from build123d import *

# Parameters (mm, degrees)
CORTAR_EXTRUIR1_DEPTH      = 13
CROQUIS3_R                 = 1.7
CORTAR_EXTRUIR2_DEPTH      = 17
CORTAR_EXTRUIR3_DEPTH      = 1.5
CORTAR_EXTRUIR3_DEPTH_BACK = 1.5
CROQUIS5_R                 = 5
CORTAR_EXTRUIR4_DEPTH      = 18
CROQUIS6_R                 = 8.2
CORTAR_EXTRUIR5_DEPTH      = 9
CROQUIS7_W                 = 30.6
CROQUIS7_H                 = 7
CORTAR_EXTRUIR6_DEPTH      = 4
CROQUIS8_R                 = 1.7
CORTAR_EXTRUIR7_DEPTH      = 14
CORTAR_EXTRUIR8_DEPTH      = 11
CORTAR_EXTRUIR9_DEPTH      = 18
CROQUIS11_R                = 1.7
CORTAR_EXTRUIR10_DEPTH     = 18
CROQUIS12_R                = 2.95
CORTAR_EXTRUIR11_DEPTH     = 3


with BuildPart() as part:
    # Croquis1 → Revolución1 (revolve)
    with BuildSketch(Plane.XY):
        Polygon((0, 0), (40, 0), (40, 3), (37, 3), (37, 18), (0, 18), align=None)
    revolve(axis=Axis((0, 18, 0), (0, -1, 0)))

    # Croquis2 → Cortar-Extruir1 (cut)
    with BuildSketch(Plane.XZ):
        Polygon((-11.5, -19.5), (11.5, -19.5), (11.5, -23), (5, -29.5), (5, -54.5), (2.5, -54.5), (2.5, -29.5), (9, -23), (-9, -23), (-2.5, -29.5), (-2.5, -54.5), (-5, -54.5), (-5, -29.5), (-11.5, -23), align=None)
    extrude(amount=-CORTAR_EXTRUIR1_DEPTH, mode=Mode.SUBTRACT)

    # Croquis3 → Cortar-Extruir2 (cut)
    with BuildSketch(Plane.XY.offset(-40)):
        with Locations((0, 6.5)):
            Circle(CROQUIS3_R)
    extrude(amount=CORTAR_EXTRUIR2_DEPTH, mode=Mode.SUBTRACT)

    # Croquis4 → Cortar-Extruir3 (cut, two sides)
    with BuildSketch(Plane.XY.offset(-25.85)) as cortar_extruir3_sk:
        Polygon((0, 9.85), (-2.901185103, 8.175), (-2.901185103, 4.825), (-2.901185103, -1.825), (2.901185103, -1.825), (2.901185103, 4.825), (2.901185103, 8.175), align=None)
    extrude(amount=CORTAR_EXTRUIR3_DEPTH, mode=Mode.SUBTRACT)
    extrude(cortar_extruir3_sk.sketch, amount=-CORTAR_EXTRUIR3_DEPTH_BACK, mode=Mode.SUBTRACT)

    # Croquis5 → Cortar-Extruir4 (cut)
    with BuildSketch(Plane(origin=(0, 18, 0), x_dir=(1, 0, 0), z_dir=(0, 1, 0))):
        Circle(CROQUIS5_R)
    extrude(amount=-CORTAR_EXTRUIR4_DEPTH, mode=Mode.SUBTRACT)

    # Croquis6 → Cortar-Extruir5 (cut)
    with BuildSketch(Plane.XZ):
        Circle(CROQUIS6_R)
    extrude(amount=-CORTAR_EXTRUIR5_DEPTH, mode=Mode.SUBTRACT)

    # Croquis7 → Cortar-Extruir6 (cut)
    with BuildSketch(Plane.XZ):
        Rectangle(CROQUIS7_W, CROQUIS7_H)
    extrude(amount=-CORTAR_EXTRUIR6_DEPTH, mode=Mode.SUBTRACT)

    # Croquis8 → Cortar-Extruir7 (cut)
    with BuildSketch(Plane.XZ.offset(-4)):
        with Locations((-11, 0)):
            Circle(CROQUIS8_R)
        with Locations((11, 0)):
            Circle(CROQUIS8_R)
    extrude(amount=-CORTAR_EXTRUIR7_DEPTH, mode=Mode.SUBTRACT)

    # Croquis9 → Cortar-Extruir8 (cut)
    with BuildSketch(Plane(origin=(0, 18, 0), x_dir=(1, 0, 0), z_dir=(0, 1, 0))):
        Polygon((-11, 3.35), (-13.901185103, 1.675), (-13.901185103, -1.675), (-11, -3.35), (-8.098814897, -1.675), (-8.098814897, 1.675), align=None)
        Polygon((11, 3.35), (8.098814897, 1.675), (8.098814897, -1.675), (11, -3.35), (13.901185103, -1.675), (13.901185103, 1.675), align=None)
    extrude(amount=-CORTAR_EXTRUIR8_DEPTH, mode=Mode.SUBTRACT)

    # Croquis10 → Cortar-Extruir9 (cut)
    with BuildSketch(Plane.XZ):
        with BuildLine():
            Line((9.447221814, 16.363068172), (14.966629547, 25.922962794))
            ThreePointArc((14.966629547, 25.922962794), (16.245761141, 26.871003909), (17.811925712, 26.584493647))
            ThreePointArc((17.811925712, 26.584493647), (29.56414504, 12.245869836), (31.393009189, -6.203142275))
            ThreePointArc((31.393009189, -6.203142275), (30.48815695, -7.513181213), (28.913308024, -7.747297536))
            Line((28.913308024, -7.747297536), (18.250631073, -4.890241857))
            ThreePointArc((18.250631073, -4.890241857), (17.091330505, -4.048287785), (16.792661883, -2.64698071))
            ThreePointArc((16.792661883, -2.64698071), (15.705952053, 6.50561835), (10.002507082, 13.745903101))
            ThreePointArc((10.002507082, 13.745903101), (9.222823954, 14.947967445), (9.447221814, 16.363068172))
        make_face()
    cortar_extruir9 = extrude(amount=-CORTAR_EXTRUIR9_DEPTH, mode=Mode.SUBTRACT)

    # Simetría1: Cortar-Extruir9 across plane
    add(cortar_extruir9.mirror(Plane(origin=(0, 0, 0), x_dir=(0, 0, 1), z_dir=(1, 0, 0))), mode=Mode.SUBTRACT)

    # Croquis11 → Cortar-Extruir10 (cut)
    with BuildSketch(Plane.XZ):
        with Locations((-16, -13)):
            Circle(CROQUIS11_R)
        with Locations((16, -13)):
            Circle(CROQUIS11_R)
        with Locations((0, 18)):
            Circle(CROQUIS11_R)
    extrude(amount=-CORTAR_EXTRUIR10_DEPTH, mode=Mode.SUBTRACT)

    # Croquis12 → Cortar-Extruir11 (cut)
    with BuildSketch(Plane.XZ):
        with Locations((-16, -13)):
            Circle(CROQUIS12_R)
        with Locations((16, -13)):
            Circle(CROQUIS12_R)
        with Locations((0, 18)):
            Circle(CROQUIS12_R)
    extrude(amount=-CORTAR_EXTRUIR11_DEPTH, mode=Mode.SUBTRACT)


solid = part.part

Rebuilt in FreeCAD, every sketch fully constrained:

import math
import FreeCAD as App
import Part
import Sketcher

V = App.Vector
Q = App.Units.Quantity

doc = App.newDocument("Part")
body = doc.addObject("PartDesign::Body", "Body")

# Sketch on XY plane
sketch1 = body.newObject("Sketcher::SketchObject", "Sketch")
sketch1.AttachmentSupport = (doc.getObject("XY_Plane"), [""])
sketch1.MapMode = "FlatFace"
sketch1.addGeometry(Part.LineSegment(V(0, 0, 0), V(40, 0, 0)), False)
sketch1.addGeometry(Part.LineSegment(V(40, 0, 0), V(40, 3, 0)), False)
sketch1.addGeometry(Part.LineSegment(V(40, 3, 0), V(37, 3, 0)), False)
sketch1.addGeometry(Part.LineSegment(V(37, 3, 0), V(37, 18, 0)), False)
sketch1.addGeometry(Part.LineSegment(V(37, 18, 0), V(0, 18, 0)), False)
sketch1.addGeometry(Part.LineSegment(V(0, 18, 0), V(0, 0, 0)), False)
sketch1.addConstraint(Sketcher.Constraint("Coincident", 0, 2, 1, 1))
sketch1.addConstraint(Sketcher.Constraint("Coincident", 1, 2, 2, 1))
sketch1.addConstraint(Sketcher.Constraint("Coincident", 2, 2, 3, 1))
sketch1.addConstraint(Sketcher.Constraint("Coincident", 3, 2, 4, 1))
sketch1.addConstraint(Sketcher.Constraint("Coincident", 4, 2, 5, 1))
sketch1.addConstraint(Sketcher.Constraint("Coincident", 5, 2, 0, 1))
sketch1.addConstraint(Sketcher.Constraint("Horizontal", 0))
sketch1.addConstraint(Sketcher.Constraint("Vertical", 1))
sketch1.addConstraint(Sketcher.Constraint("Horizontal", 2))
sketch1.addConstraint(Sketcher.Constraint("Vertical", 3))
sketch1.addConstraint(Sketcher.Constraint("Horizontal", 4))
sketch1.addConstraint(Sketcher.Constraint("Vertical", 5))
sketch1.addConstraint(Sketcher.Constraint("Coincident", 5, 2, -1, 1))
sketch1.addConstraint(Sketcher.Constraint("Equal", 2, 1))
sketch1.addConstraint(Sketcher.Constraint("DistanceX", 0, 1, 0, 2, 40.0))
sketch1.addConstraint(Sketcher.Constraint("DistanceX", 2, 2, 2, 1, 3.0))
sketch1.addConstraint(Sketcher.Constraint("DistanceY", 3, 1, 3, 2, 15.0))
revolution = body.newObject("PartDesign::Revolution", "Revolution")
revolution.Profile = sketch1
revolution.ReferenceAxis = (sketch1, ["V_Axis"])
revolution.Angle = 360

# Sketch on XZ plane
sketch2 = body.newObject("Sketcher::SketchObject", "Sketch001")
sketch2.AttachmentSupport = (doc.getObject("XZ_Plane"), [""])
sketch2.MapMode = "FlatFace"
sketch2.addGeometry(Part.LineSegment(V(11.5, -19.5, 0), V(-11.5, -19.5, 0)), False)
sketch2.addGeometry(Part.LineSegment(V(-11.5, -19.5, 0), V(-11.5, -23, 0)), False)
sketch2.addGeometry(Part.LineSegment(V(-11.5, -23, 0), V(-5, -29.5, 0)), False)
sketch2.addGeometry(Part.LineSegment(V(-5, -29.5, 0), V(-5, -54.5, 0)), False)
sketch2.addGeometry(Part.LineSegment(V(-5, -54.5, 0), V(-2.5, -54.5, 0)), False)
sketch2.addGeometry(Part.LineSegment(V(-2.5, -54.5, 0), V(-2.5, -29.5, 0)), False)
sketch2.addGeometry(Part.LineSegment(V(-2.5, -29.5, 0), V(-9, -23, 0)), False)
sketch2.addGeometry(Part.LineSegment(V(-9, -23, 0), V(9, -23, 0)), False)
sketch2.addGeometry(Part.LineSegment(V(9, -23, 0), V(2.5, -29.5, 0)), False)
sketch2.addGeometry(Part.LineSegment(V(2.5, -29.5, 0), V(2.5, -54.5, 0)), False)
sketch2.addGeometry(Part.LineSegment(V(2.5, -54.5, 0), V(5, -54.5, 0)), False)
sketch2.addGeometry(Part.LineSegment(V(5, -54.5, 0), V(5, -29.5, 0)), False)
sketch2.addGeometry(Part.LineSegment(V(5, -29.5, 0), V(11.5, -23, 0)), False)
sketch2.addGeometry(Part.LineSegment(V(11.5, -23, 0), V(11.5, -19.5, 0)), False)
sketch2.addConstraint(Sketcher.Constraint("Coincident", 0, 2, 1, 1))
sketch2.addConstraint(Sketcher.Constraint("Coincident", 1, 2, 2, 1))
sketch2.addConstraint(Sketcher.Constraint("Coincident", 2, 2, 3, 1))
sketch2.addConstraint(Sketcher.Constraint("Coincident", 3, 2, 4, 1))
sketch2.addConstraint(Sketcher.Constraint("Coincident", 4, 2, 5, 1))
sketch2.addConstraint(Sketcher.Constraint("Coincident", 5, 2, 6, 1))
sketch2.addConstraint(Sketcher.Constraint("Coincident", 6, 2, 7, 1))
sketch2.addConstraint(Sketcher.Constraint("Coincident", 7, 2, 8, 1))
sketch2.addConstraint(Sketcher.Constraint("Coincident", 8, 2, 9, 1))
sketch2.addConstraint(Sketcher.Constraint("Coincident", 9, 2, 10, 1))
sketch2.addConstraint(Sketcher.Constraint("Coincident", 10, 2, 11, 1))
sketch2.addConstraint(Sketcher.Constraint("Coincident", 11, 2, 12, 1))
sketch2.addConstraint(Sketcher.Constraint("Coincident", 12, 2, 13, 1))
sketch2.addConstraint(Sketcher.Constraint("Coincident", 13, 2, 0, 1))
sketch2.addConstraint(Sketcher.Constraint("Horizontal", 0))
sketch2.addConstraint(Sketcher.Constraint("Vertical", 1))
sketch2.addConstraint(Sketcher.Constraint("Vertical", 3))
sketch2.addConstraint(Sketcher.Constraint("Horizontal", 4))
sketch2.addConstraint(Sketcher.Constraint("Vertical", 5))
sketch2.addConstraint(Sketcher.Constraint("Horizontal", 7))
sketch2.addConstraint(Sketcher.Constraint("Vertical", 9))
sketch2.addConstraint(Sketcher.Constraint("Horizontal", 10))
sketch2.addConstraint(Sketcher.Constraint("Vertical", 11))
sketch2.addConstraint(Sketcher.Constraint("Vertical", 13))
sketch2.addConstraint(Sketcher.Constraint("Symmetric", 5, 2, 8, 2, -2))
sketch2.addConstraint(Sketcher.Constraint("Symmetric", 3, 2, 10, 2, -2))
sketch2.addConstraint(Sketcher.Constraint("Symmetric", 1, 2, 12, 2, -2))
sketch2.addConstraint(Sketcher.Constraint("Parallel", 2, 6))
sketch2.addConstraint(Sketcher.Constraint("Perpendicular", 6, 8))
sketch2.addConstraint(Sketcher.Constraint("Parallel", 8, 12))
sketch2.addConstraint(Sketcher.Constraint("Horizontal", 2, 2, 5, 2))
sketch2.addConstraint(Sketcher.Constraint("Horizontal", 1, 2, 6, 2))
sketch2.addConstraint(Sketcher.Constraint("Horizontal", 8, 2, 11, 2))
sketch2.addConstraint(Sketcher.Constraint("DistanceX", 0, 2, 0, 1, 23.0))
sketch2.addConstraint(Sketcher.Constraint("DistanceX", 7, 1, 7, 2, 18.0))
sketch2.addConstraint(Sketcher.Constraint("DistanceY", 3, 2, 3, 1, 25.0))
sketch2.addConstraint(Sketcher.Constraint("DistanceY", 1, 2, 1, 1, 3.5))
sketch2.addConstraint(Sketcher.Constraint("DistanceY", 1, 2, -1, 1, 23.0))
sketch2.addConstraint(Sketcher.Constraint("DistanceX", 2, 2, -1, 1, 5.0))
pocket1 = body.newObject("PartDesign::Pocket", "Pocket")
pocket1.Profile = sketch2
pocket1.Length = 13

# Sketch on XY plane
sketch3 = body.newObject("Sketcher::SketchObject", "Sketch002")
sketch3.AttachmentSupport = (doc.getObject("XY_Plane"), [""])
sketch3.MapMode = "FlatFace"
sketch3.AttachmentOffset = App.Placement(V(0, 0, -40), App.Rotation())
sketch3.addGeometry(Part.Circle(V(0, 6.5, 0), V(0, 0, 1), 1.7), False)
sketch3.addConstraint(Sketcher.Constraint("PointOnObject", 0, 3, -2))
sketch3.addConstraint(Sketcher.Constraint("Diameter", 0, 3.4))
sketch3.addConstraint(Sketcher.Constraint("DistanceY", -1, 1, 0, 3, 6.5))
pocket2 = body.newObject("PartDesign::Pocket", "Pocket001")
pocket2.Profile = sketch3
pocket2.Length = 17
pocket2.Reversed = True

# Sketch on XY plane
sketch4 = body.newObject("Sketcher::SketchObject", "Sketch003")
sketch4.AttachmentSupport = (doc.getObject("XY_Plane"), [""])
sketch4.MapMode = "FlatFace"
sketch4.AttachmentOffset = App.Placement(V(0, 0, -25.85), App.Rotation())
sketch4.addGeometry(Part.LineSegment(V(0, 9.8, 0), V(-2.9, 8.2, 0)), False)
sketch4.addGeometry(Part.LineSegment(V(-2.9, 8.2, 0), V(-2.9, -1.8, 0)), False)
sketch4.addGeometry(Part.LineSegment(V(-2.9, -1.8, 0), V(2.9, -1.8, 0)), False)
sketch4.addGeometry(Part.LineSegment(V(2.9, -1.8, 0), V(2.9, 8.2, 0)), False)
sketch4.addGeometry(Part.LineSegment(V(2.9, 8.2, 0), V(0, 9.8, 0)), False)
sketch4.addConstraint(Sketcher.Constraint("Coincident", 0, 2, 1, 1))
sketch4.addConstraint(Sketcher.Constraint("Coincident", 1, 2, 2, 1))
sketch4.addConstraint(Sketcher.Constraint("Coincident", 2, 2, 3, 1))
sketch4.addConstraint(Sketcher.Constraint("Coincident", 3, 2, 4, 1))
sketch4.addConstraint(Sketcher.Constraint("Coincident", 4, 2, 0, 1))
sketch4.addConstraint(Sketcher.Constraint("Vertical", 1))
sketch4.addConstraint(Sketcher.Constraint("Horizontal", 2))
sketch4.addConstraint(Sketcher.Constraint("Vertical", 3))
sketch4.addConstraint(Sketcher.Constraint("Symmetric", 0, 2, 3, 2, -2))
sketch4.addConstraint(Sketcher.Constraint("PointOnObject", 4, 2, -2))
sketch4.addConstraint(Sketcher.Constraint("DistanceY", 1, 2, 1, 1, 10.0))
sketch4.addConstraint(Sketcher.Constraint("Angle", 0, Q("-150 deg")))
sketch4.addConstraint(Sketcher.Constraint("Distance", 0, 3.35))
sketch4.addConstraint(Sketcher.Constraint("DistanceY", -1, 1, 4, 2, 9.85))
pocket3 = body.newObject("PartDesign::Pocket", "Pocket002")
pocket3.Profile = sketch4
pocket3.Type = "TwoLengths"
pocket3.Length = 1.5
pocket3.Length2 = 1.5
pocket3.Reversed = True

# Sketch on XZ plane
sketch5 = body.newObject("Sketcher::SketchObject", "Sketch004")
sketch5.AttachmentSupport = (doc.getObject("XZ_Plane"), [""])
sketch5.MapMode = "FlatFace"
sketch5.AttachmentOffset = App.Placement(V(0, 0, -18), App.Rotation())
sketch5.addGeometry(Part.Circle(V(0, 0, 0), V(0, 0, 1), 5), False)
sketch5.addConstraint(Sketcher.Constraint("Coincident", 0, 3, -1, 1))
sketch5.addConstraint(Sketcher.Constraint("Diameter", 0, 10.0))
pocket4 = body.newObject("PartDesign::Pocket", "Pocket003")
pocket4.Profile = sketch5
pocket4.Length = 18
pocket4.Reversed = True

# Sketch on XZ plane
sketch6 = body.newObject("Sketcher::SketchObject", "Sketch005")
sketch6.AttachmentSupport = (doc.getObject("XZ_Plane"), [""])
sketch6.MapMode = "FlatFace"
sketch6.addGeometry(Part.Circle(V(0, 0, 0), V(0, 0, 1), 8), False)
sketch6.addConstraint(Sketcher.Constraint("Coincident", 0, 3, -1, 1))
sketch6.addConstraint(Sketcher.Constraint("Diameter", 0, 16.4))
pocket5 = body.newObject("PartDesign::Pocket", "Pocket004")
pocket5.Profile = sketch6
pocket5.Length = 9

# Sketch on XZ plane
sketch7 = body.newObject("Sketcher::SketchObject", "Sketch006")
sketch7.AttachmentSupport = (doc.getObject("XZ_Plane"), [""])
sketch7.MapMode = "FlatFace"
sketch7.addGeometry(Part.LineSegment(V(-15, 4, 0), V(-15, -4, 0)), False)
sketch7.addGeometry(Part.LineSegment(V(-15, -4, 0), V(15, -4, 0)), False)
sketch7.addGeometry(Part.LineSegment(V(15, -4, 0), V(15, 4, 0)), False)
sketch7.addGeometry(Part.LineSegment(V(15, 4, 0), V(-15, 4, 0)), False)
sketch7.addConstraint(Sketcher.Constraint("Coincident", 0, 2, 1, 1))
sketch7.addConstraint(Sketcher.Constraint("Coincident", 1, 2, 2, 1))
sketch7.addConstraint(Sketcher.Constraint("Coincident", 2, 2, 3, 1))
sketch7.addConstraint(Sketcher.Constraint("Coincident", 3, 2, 0, 1))
sketch7.addConstraint(Sketcher.Constraint("Vertical", 0))
sketch7.addConstraint(Sketcher.Constraint("Horizontal", 1))
sketch7.addConstraint(Sketcher.Constraint("Vertical", 2))
sketch7.addConstraint(Sketcher.Constraint("Horizontal", 3))
sketch7.addConstraint(Sketcher.Constraint("Symmetric", 0, 2, 2, 2, -1, 1))
sketch7.addConstraint(Sketcher.Constraint("DistanceY", 0, 2, 0, 1, 7.0))
sketch7.addConstraint(Sketcher.Constraint("DistanceX", 1, 1, 1, 2, 30.6))
pocket6 = body.newObject("PartDesign::Pocket", "Pocket005")
pocket6.Profile = sketch7
pocket6.Length = 4

# Sketch on XZ plane
sketch8 = body.newObject("Sketcher::SketchObject", "Sketch007")
sketch8.AttachmentSupport = (doc.getObject("XZ_Plane"), [""])
sketch8.MapMode = "FlatFace"
sketch8.AttachmentOffset = App.Placement(V(0, 0, -4), App.Rotation())
sketch8.addGeometry(Part.Circle(V(-11, 0, 0), V(0, 0, 1), 1.7), False)
sketch8.addGeometry(Part.Circle(V(11, 0, 0), V(0, 0, 1), 1.7), False)
sketch8.addConstraint(Sketcher.Constraint("Equal", 0, 1))
sketch8.addConstraint(Sketcher.Constraint("Symmetric", 0, 3, 1, 3, -1, 1))
sketch8.addConstraint(Sketcher.Constraint("PointOnObject", 0, 3, -1))
sketch8.addConstraint(Sketcher.Constraint("Diameter", 0, 3.4))
sketch8.addConstraint(Sketcher.Constraint("DistanceX", 0, 3, -1, 1, 11.0))
pocket7 = body.newObject("PartDesign::Pocket", "Pocket006")
pocket7.Profile = sketch8
pocket7.Length = 14

# Sketch on XZ plane
sketch9 = body.newObject("Sketcher::SketchObject", "Sketch008")
sketch9.AttachmentSupport = (doc.getObject("XZ_Plane"), [""])
sketch9.MapMode = "FlatFace"
sketch9.AttachmentOffset = App.Placement(V(0, 0, -18), App.Rotation())
sketch9.addGeometry(Part.LineSegment(V(-11, -3.4, 0), V(-13.9, -1.7, 0)), False)
sketch9.addGeometry(Part.LineSegment(V(-13.9, -1.7, 0), V(-13.9, 1.7, 0)), False)
sketch9.addGeometry(Part.LineSegment(V(-13.9, 1.7, 0), V(-11, 3.4, 0)), False)
sketch9.addGeometry(Part.LineSegment(V(-11, 3.4, 0), V(-8.1, 1.7, 0)), False)
sketch9.addGeometry(Part.LineSegment(V(-8.1, 1.7, 0), V(-8.1, -1.7, 0)), False)
sketch9.addGeometry(Part.LineSegment(V(-8.1, -1.7, 0), V(-11, -3.4, 0)), False)
sketch9.addGeometry(Part.LineSegment(V(11, -3.4, 0), V(8.1, -1.7, 0)), False)
sketch9.addGeometry(Part.LineSegment(V(8.1, -1.7, 0), V(8.1, 1.7, 0)), False)
sketch9.addGeometry(Part.LineSegment(V(8.1, 1.7, 0), V(11, 3.4, 0)), False)
sketch9.addGeometry(Part.LineSegment(V(11, 3.4, 0), V(13.9, 1.7, 0)), False)
sketch9.addGeometry(Part.LineSegment(V(13.9, 1.7, 0), V(13.9, -1.7, 0)), False)
sketch9.addGeometry(Part.LineSegment(V(13.9, -1.7, 0), V(11, -3.4, 0)), False)
sketch9.addConstraint(Sketcher.Constraint("Coincident", 0, 2, 1, 1))
sketch9.addConstraint(Sketcher.Constraint("Coincident", 1, 2, 2, 1))
sketch9.addConstraint(Sketcher.Constraint("Coincident", 2, 2, 3, 1))
sketch9.addConstraint(Sketcher.Constraint("Coincident", 3, 2, 4, 1))
sketch9.addConstraint(Sketcher.Constraint("Coincident", 4, 2, 5, 1))
sketch9.addConstraint(Sketcher.Constraint("Coincident", 5, 2, 0, 1))
sketch9.addConstraint(Sketcher.Constraint("Coincident", 6, 2, 7, 1))
sketch9.addConstraint(Sketcher.Constraint("Coincident", 7, 2, 8, 1))
sketch9.addConstraint(Sketcher.Constraint("Coincident", 8, 2, 9, 1))
sketch9.addConstraint(Sketcher.Constraint("Coincident", 9, 2, 10, 1))
sketch9.addConstraint(Sketcher.Constraint("Coincident", 10, 2, 11, 1))
sketch9.addConstraint(Sketcher.Constraint("Coincident", 11, 2, 6, 1))
sketch9.addConstraint(Sketcher.Constraint("Vertical", 1))
sketch9.addConstraint(Sketcher.Constraint("Vertical", 4))
sketch9.addConstraint(Sketcher.Constraint("Vertical", 7))
sketch9.addConstraint(Sketcher.Constraint("Vertical", 10))
sketch9.addConstraint(Sketcher.Constraint("Symmetric", 3, 2, 6, 2, -1, 1))
sketch9.addConstraint(Sketcher.Constraint("Symmetric", 5, 2, 8, 2, -1, 1))
sketch9.addConstraint(Sketcher.Constraint("Symmetric", 0, 2, 9, 2, -1, 1))
sketch9.addConstraint(Sketcher.Constraint("Symmetric", 2, 2, 11, 2, -1, 1))
sketch9.addConstraint(Sketcher.Constraint("Symmetric", 2, 2, 8, 2, -2))
sketch9.addConstraint(Sketcher.Constraint("Parallel", 0, 3))
sketch9.addConstraint(Sketcher.Constraint("Parallel", 2, 5))
sketch9.addConstraint(Sketcher.Constraint("Parallel", 5, 8))
sketch9.addConstraint(Sketcher.Constraint("Parallel", 8, 11))
sketch9.addConstraint(Sketcher.Constraint("Horizontal", 1, 2, 3, 2))
sketch9.addConstraint(Sketcher.Constraint("Horizontal", 0, 2, 4, 2))
sketch9.addConstraint(Sketcher.Constraint("Angle", 0, Q("150 deg")))
sketch9.addConstraint(Sketcher.Constraint("DistanceX", 2, 2, -1, 1, 11.0))
sketch9.addConstraint(Sketcher.Constraint("DistanceY", 1, 1, 1, 2, 3.35))
sketch9.addConstraint(Sketcher.Constraint("DistanceY", 5, 2, 2, 2, 6.7))
pocket8 = body.newObject("PartDesign::Pocket", "Pocket007")
pocket8.Profile = sketch9
pocket8.Length = 11
pocket8.Reversed = True

# Sketch on XZ plane
sketch10 = body.newObject("Sketcher::SketchObject", "Sketch009")
sketch10.AttachmentSupport = (doc.getObject("XZ_Plane"), [""])
sketch10.MapMode = "FlatFace"
sketch10.addGeometry(Part.LineSegment(V(15, 25.9, 0), V(9.4, 16.4, 0)), False)
sketch10.addGeometry(Part.ArcOfCircle(Part.Circle(V(11.2, 15.4, 0), V(0, 0, 1), 2), math.radians(150), math.radians(234)), False)
sketch10.addGeometry(Part.ArcOfCircle(Part.Circle(V(0, 0, 0), V(0, 0, 1), 17), math.radians(-9), math.radians(54)), False)
sketch10.addGeometry(Part.ArcOfCircle(Part.Circle(V(18.8, -3, 0), V(0, 0, 1), 2), math.radians(171), math.radians(255)), False)
sketch10.addGeometry(Part.LineSegment(V(18.3, -4.9, 0), V(28.9, -7.7, 0)), False)
sketch10.addGeometry(Part.ArcOfCircle(Part.Circle(V(29.4, -5.8, 0), V(0, 0, 1), 2), math.radians(-105), math.radians(-11)), False)
sketch10.addGeometry(Part.ArcOfCircle(Part.Circle(V(0, 0, 0), V(0, 0, 1), 32), math.radians(-11), math.radians(56)), False)
sketch10.addGeometry(Part.ArcOfCircle(Part.Circle(V(16.7, 24.9, 0), V(0, 0, 1), 2), math.radians(56), math.radians(150)), False)
sketch10.addConstraint(Sketcher.Constraint("Tangent", 0, 2, 1, 1))
sketch10.addConstraint(Sketcher.Constraint("Tangent", 1, 2, 2, 2))
sketch10.addConstraint(Sketcher.Constraint("Tangent", 2, 1, 3, 1))
sketch10.addConstraint(Sketcher.Constraint("Tangent", 3, 2, 4, 1))
sketch10.addConstraint(Sketcher.Constraint("Tangent", 4, 2, 5, 1))
sketch10.addConstraint(Sketcher.Constraint("Tangent", 5, 2, 6, 1))
sketch10.addConstraint(Sketcher.Constraint("Tangent", 6, 2, 7, 1))
sketch10.addConstraint(Sketcher.Constraint("Tangent", 7, 2, 0, 1))
sketch10.addConstraint(Sketcher.Constraint("Coincident", 2, 3, -1, 1))
sketch10.addConstraint(Sketcher.Constraint("Coincident", 6, 3, -1, 1))
sketch10.addConstraint(Sketcher.Constraint("Equal", 1, 3))
sketch10.addConstraint(Sketcher.Constraint("Equal", 3, 5))
sketch10.addConstraint(Sketcher.Constraint("Equal", 5, 7))
sketch10.addConstraint(Sketcher.Constraint("Equal", 0, 4))
sketch10.addConstraint(Sketcher.Constraint("Radius", 1, 2.0))
sketch10.addConstraint(Sketcher.Constraint("Radius", 2, 17.0))
sketch10.addConstraint(Sketcher.Constraint("Radius", 6, 32.0))
sketch10.addConstraint(Sketcher.Constraint("Angle", 0, Q("-120 deg")))
sketch10.addConstraint(Sketcher.Constraint("Angle", 4, Q("-15 deg")))
sketch10.addConstraint(Sketcher.Constraint("DistanceX", 1, 2, 4, 2, 18.910801))
pocket9 = body.newObject("PartDesign::Pocket", "Pocket008")
pocket9.Profile = sketch10
pocket9.Length = 18
doc.recompute()

mirrored = body.newObject("PartDesign::Mirrored", "Mirrored")
mirrored.Originals = [pocket9]
mirrored.MirrorPlane = (doc.getObject("YZ_Plane"), [""])
body.Tip = mirrored

# Sketch on XZ plane
sketch11 = body.newObject("Sketcher::SketchObject", "Sketch010")
sketch11.AttachmentSupport = (doc.getObject("XZ_Plane"), [""])
sketch11.MapMode = "FlatFace"
sketch11.addGeometry(Part.Circle(V(-16, -13, 0), V(0, 0, 1), 1.7), False)
sketch11.addGeometry(Part.Circle(V(16, -13, 0), V(0, 0, 1), 1.7), False)
sketch11.addGeometry(Part.Circle(V(0, 18, 0), V(0, 0, 1), 1.7), False)
sketch11.addConstraint(Sketcher.Constraint("Equal", 0, 1))
sketch11.addConstraint(Sketcher.Constraint("Equal", 1, 2))
sketch11.addConstraint(Sketcher.Constraint("Symmetric", 0, 3, 1, 3, -2))
sketch11.addConstraint(Sketcher.Constraint("PointOnObject", 2, 3, -2))
sketch11.addConstraint(Sketcher.Constraint("Diameter", 0, 3.4))
sketch11.addConstraint(Sketcher.Constraint("DistanceX", 0, 3, -1, 1, 16.0))
sketch11.addConstraint(Sketcher.Constraint("DistanceY", 0, 3, -1, 1, 13.0))
sketch11.addConstraint(Sketcher.Constraint("DistanceY", -1, 1, 2, 3, 18.0))
pocket10 = body.newObject("PartDesign::Pocket", "Pocket009")
pocket10.Profile = sketch11
pocket10.Length = 18

# Sketch on XZ plane
sketch12 = body.newObject("Sketcher::SketchObject", "Sketch011")
sketch12.AttachmentSupport = (doc.getObject("XZ_Plane"), [""])
sketch12.MapMode = "FlatFace"
sketch12.addGeometry(Part.Circle(V(-16, -13, 0), V(0, 0, 1), 3), False)
sketch12.addGeometry(Part.Circle(V(16, -13, 0), V(0, 0, 1), 3), False)
sketch12.addGeometry(Part.Circle(V(0, 18, 0), V(0, 0, 1), 3), False)
sketch12.addConstraint(Sketcher.Constraint("Equal", 0, 1))
sketch12.addConstraint(Sketcher.Constraint("Equal", 1, 2))
sketch12.addConstraint(Sketcher.Constraint("Symmetric", 0, 3, 1, 3, -2))
sketch12.addConstraint(Sketcher.Constraint("PointOnObject", 2, 3, -2))
sketch12.addConstraint(Sketcher.Constraint("Diameter", 0, 5.9))
sketch12.addConstraint(Sketcher.Constraint("DistanceX", 0, 3, -1, 1, 16.0))
sketch12.addConstraint(Sketcher.Constraint("DistanceY", 0, 3, -1, 1, 13.0))
sketch12.addConstraint(Sketcher.Constraint("DistanceY", -1, 1, 2, 3, 18.0))
pocket11 = body.newObject("PartDesign::Pocket", "Pocket010")
pocket11.Profile = sketch12
pocket11.Length = 3

doc.recompute()
